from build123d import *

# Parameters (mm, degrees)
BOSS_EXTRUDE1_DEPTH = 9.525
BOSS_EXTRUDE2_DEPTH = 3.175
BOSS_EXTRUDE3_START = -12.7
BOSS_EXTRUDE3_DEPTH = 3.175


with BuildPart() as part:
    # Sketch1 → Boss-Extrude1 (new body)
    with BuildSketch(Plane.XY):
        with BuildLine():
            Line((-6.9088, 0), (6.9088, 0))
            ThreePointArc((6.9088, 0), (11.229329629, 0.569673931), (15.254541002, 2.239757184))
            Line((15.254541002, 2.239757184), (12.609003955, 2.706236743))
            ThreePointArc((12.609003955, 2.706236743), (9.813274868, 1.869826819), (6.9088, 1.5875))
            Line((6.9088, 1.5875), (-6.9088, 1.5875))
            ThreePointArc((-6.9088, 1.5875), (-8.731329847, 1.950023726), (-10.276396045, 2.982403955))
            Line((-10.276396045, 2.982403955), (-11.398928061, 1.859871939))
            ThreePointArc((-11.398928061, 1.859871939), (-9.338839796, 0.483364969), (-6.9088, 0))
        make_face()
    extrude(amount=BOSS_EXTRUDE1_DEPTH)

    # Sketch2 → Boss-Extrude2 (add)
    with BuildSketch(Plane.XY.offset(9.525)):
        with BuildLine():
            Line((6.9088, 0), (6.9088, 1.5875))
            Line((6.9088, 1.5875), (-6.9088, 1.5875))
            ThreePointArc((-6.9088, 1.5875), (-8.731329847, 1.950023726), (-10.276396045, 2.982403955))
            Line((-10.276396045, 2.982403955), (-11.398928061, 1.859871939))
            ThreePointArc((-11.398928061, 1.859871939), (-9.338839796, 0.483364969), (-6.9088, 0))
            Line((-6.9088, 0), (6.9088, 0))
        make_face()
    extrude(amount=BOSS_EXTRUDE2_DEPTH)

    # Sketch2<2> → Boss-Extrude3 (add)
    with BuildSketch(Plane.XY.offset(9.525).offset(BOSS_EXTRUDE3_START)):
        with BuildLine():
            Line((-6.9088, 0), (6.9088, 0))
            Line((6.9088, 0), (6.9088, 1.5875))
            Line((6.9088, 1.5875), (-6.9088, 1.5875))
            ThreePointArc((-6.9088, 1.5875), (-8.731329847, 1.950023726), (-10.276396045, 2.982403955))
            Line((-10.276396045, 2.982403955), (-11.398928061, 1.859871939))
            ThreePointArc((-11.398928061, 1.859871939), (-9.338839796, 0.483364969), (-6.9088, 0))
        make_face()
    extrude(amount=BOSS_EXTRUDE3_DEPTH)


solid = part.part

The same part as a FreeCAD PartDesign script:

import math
import FreeCAD as App
import Part
import Sketcher
Q = App.Units.Quantity

doc = App.newDocument("Part")
body = doc.addObject("PartDesign::Body", "Body")

sketch1 = doc.addObject("Sketcher::SketchObject", "Sketch")
body.addObject(sketch1)
sketch1.AttachmentSupport = (doc.XY_Plane, [""])
sketch1.MapMode = "FlatFace"
sketch1.addGeometry(Part.LineSegment(App.Vector(-6.9088, 0, 0), App.Vector(6.9088, 0, 0)), False)
sketch1.addGeometry(Part.ArcOfCircle(Part.Circle(App.Vector(6.9088, 16.66875, 0), App.Vector(0, 0, 1), 16.66875), math.radians(-90), math.radians(-59.954877)), False)
sketch1.addGeometry(Part.LineSegment(App.Vector(15.254541, 2.239757, 0), App.Vector(12.609004, 2.706237, 0)), False)
sketch1.addGeometry(Part.ArcOfCircle(Part.Circle(App.Vector(6.9088, 16.66875, 0), App.Vector(0, 0, 1), 15.08125), math.radians(-90), math.radians(-67.792234)), False)
sketch1.addGeometry(Part.LineSegment(App.Vector(6.9088, 1.5875, 0), App.Vector(-6.9088, 1.5875, 0)), False)
sketch1.addGeometry(Part.ArcOfCircle(Part.Circle(App.Vector(-6.9088, 6.35, 0), App.Vector(0, 0, 1), 4.7625), math.radians(-135), math.radians(-90)), False)
sketch1.addGeometry(Part.LineSegment(App.Vector(-10.276396, 2.982404, 0), App.Vector(-11.398928, 1.859872, 0)), False)
sketch1.addGeometry(Part.ArcOfCircle(Part.Circle(App.Vector(-6.9088, 6.35, 0), App.Vector(0, 0, 1), 6.35), math.radians(-135), math.radians(-90)), False)
sketch1.addConstraint(Sketcher.Constraint("Tangent", 0, 2, 1, 1))
sketch1.addConstraint(Sketcher.Constraint("Coincident", 1, 2, 2, 1))
sketch1.addConstraint(Sketcher.Constraint("Coincident", 2, 2, 3, 2))
sketch1.addConstraint(Sketcher.Constraint("Tangent", 3, 1, 4, 1))
sketch1.addConstraint(Sketcher.Constraint("Tangent", 4, 2, 5, 2))
sketch1.addConstraint(Sketcher.Constraint("Coincident", 5, 1, 6, 1))
sketch1.addConstraint(Sketcher.Constraint("Coincident", 6, 2, 7, 1))
sketch1.addConstraint(Sketcher.Constraint("Tangent", 7, 2, 0, 1))
sketch1.addConstraint(Sketcher.Constraint("Horizontal", 0))
sketch1.addConstraint(Sketcher.Constraint("Horizontal", 4))
sketch1.addConstraint(Sketcher.Constraint("Coincident", 3, 3, 1, 3))
sketch1.addConstraint(Sketcher.Constraint("Coincident", 7, 3, 5, 3))
sketch1.addConstraint(Sketcher.Constraint("Symmetric", 0, 2, 7, 2, -1, 1))
sketch1.addConstraint(Sketcher.Constraint("Radius", 7, Q("0.25 in")))
sketch1.addConstraint(Sketcher.Constraint("Angle", 2, Q("170 deg")))
sketch1.addConstraint(Sketcher.Constraint("Angle", 6, Q("-135 deg")))
sketch1.addConstraint(Sketcher.Constraint("Radius", 1, Q("0.65625 in")))
sketch1.addConstraint(Sketcher.Constraint("Radius", 3, Q("0.59375 in")))
sketch1.addConstraint(Sketcher.Constraint("DistanceX", 0, 1, 0, 2, Q("0.544 in")))
sketch1.addConstraint(Sketcher.Constraint("Distance", 2, Q("2.686349 mm")))
sketch1.addConstraint(Sketcher.Constraint("DistanceX", 6, 2, -1, 1, Q("11.398928 mm")))
pad1 = doc.addObject("PartDesign::Pad", "Pad")
body.addObject(pad1)
pad1.Profile = sketch1
pad1.Length = Q("0.375 in")

sketch2 = doc.addObject("Sketcher::SketchObject", "Sketch001")
body.addObject(sketch2)
sketch2.AttachmentSupport = (doc.XY_Plane, [""])
sketch2.MapMode = "FlatFace"
sketch2.AttachmentOffset = App.Placement(App.Vector(0, 0, 0.375 * 25.4), App.Rotation())
sketch2.addGeometry(Part.LineSegment(App.Vector(6.9088, 0, 0), App.Vector(6.9088, 1.5875, 0)), False)
sketch2.addGeometry(Part.LineSegment(App.Vector(6.9088, 1.5875, 0), App.Vector(-6.9088, 1.5875, 0)), False)
sketch2.addGeometry(Part.ArcOfCircle(Part.Circle(App.Vector(-6.9088, 6.35, 0), App.Vector(0, 0, 1), 4.7625), math.radians(-135), math.radians(-90)), False)
sketch2.addGeometry(Part.LineSegment(App.Vector(-10.276396, 2.982404, 0), App.Vector(-11.398928, 1.859872, 0)), False)
sketch2.addGeometry(Part.ArcOfCircle(Part.Circle(App.Vector(-6.9088, 6.35, 0), App.Vector(0, 0, 1), 6.35), math.radians(-135), math.radians(-90)), False)
sketch2.addGeometry(Part.LineSegment(App.Vector(-6.9088, 0, 0), App.Vector(6.9088, 0, 0)), False)
sketch2.addConstraint(Sketcher.Constraint("Coincident", 0, 2, 1, 1))
sketch2.addConstraint(Sketcher.Constraint("Tangent", 1, 2, 2, 2))
sketch2.addConstraint(Sketcher.Constraint("Coincident", 2, 1, 3, 1))
sketch2.addConstraint(Sketcher.Constraint("Coincident", 3, 2, 4, 1))
sketch2.addConstraint(Sketcher.Constraint("Tangent", 4, 2, 5, 1))
sketch2.addConstraint(Sketcher.Constraint("Coincident", 5, 2, 0, 1))
sketch2.addConstraint(Sketcher.Constraint("Vertical", 0))
sketch2.addConstraint(Sketcher.Constraint("Horizontal", 1))
sketch2.addConstraint(Sketcher.Constraint("Horizontal", 5))
sketch2.addConstraint(Sketcher.Constraint("Coincident", 4, 3, 2, 3))
sketch2.addConstraint(Sketcher.Constraint("Symmetric", 4, 2, 5, 2, -1, 1))
sketch2.addConstraint(Sketcher.Constraint("Radius", 4, Q("0.25 in")))
sketch2.addConstraint(Sketcher.Constraint("Angle", 3, Q("-135 deg")))
sketch2.addConstraint(Sketcher.Constraint("Radius", 2, Q("0.1875 in")))
sketch2.addConstraint(Sketcher.Constraint("DistanceX", 1, 2, 1, 1, Q("0.544 in")))
sketch2.addConstraint(Sketcher.Constraint("DistanceX", 3, 2, -1, 1, Q("11.398928 mm")))
pad2 = doc.addObject("PartDesign::Pad", "Pad001")
body.addObject(pad2)
pad2.Profile = sketch2
pad2.Length = Q("0.125 in")

sketch3 = doc.addObject("Sketcher::SketchObject", "Sketch002")
body.addObject(sketch3)
sketch3.AttachmentSupport = (doc.XY_Plane, [""])
sketch3.MapMode = "FlatFace"
sketch3.AttachmentOffset = App.Placement(App.Vector(0, 0, -0.125 * 25.4), App.Rotation())
sketch3.addGeometry(Part.LineSegment(App.Vector(-6.9088, 0, 0), App.Vector(6.9088, 0, 0)), False)
sketch3.addGeometry(Part.LineSegment(App.Vector(6.9088, 0, 0), App.Vector(6.9088, 1.5875, 0)), False)
sketch3.addGeometry(Part.LineSegment(App.Vector(6.9088, 1.5875, 0), App.Vector(-6.9088, 1.5875, 0)), False)
sketch3.addGeometry(Part.ArcOfCircle(Part.Circle(App.Vector(-6.9088, 6.35, 0), App.Vector(0, 0, 1), 4.7625), math.radians(-135), math.radians(-90)), False)
sketch3.addGeometry(Part.LineSegment(App.Vector(-10.276396, 2.982404, 0), App.Vector(-11.398928, 1.859872, 0)), False)
sketch3.addGeometry(Part.ArcOfCircle(Part.Circle(App.Vector(-6.9088, 6.35, 0), App.Vector(0, 0, 1), 6.35), math.radians(-135), math.radians(-90)), False)
sketch3.addConstraint(Sketcher.Constraint("Coincident", 0, 2, 1, 1))
sketch3.addConstraint(Sketcher.Constraint("Coincident", 1, 2, 2, 1))
sketch3.addConstraint(Sketcher.Constraint("Tangent", 2, 2, 3, 2))
sketch3.addConstraint(Sketcher.Constraint("Coincident", 3, 1, 4, 1))
sketch3.addConstraint(Sketcher.Constraint("Coincident", 4, 2, 5, 1))
sketch3.addConstraint(Sketcher.Constraint("Tangent", 5, 2, 0, 1))
sketch3.addConstraint(Sketcher.Constraint("Horizontal", 0))
sketch3.addConstraint(Sketcher.Constraint("Vertical", 1))
sketch3.addConstraint(Sketcher.Constraint("Horizontal", 2))
sketch3.addConstraint(Sketcher.Constraint("Coincident", 5, 3, 3, 3))
sketch3.addConstraint(Sketcher.Constraint("Symmetric", 0, 2, 5, 2, -1, 1))
sketch3.addConstraint(Sketcher.Constraint("Radius", 5, Q("0.25 in")))
sketch3.addConstraint(Sketcher.Constraint("Angle", 4, Q("-135 deg")))
sketch3.addConstraint(Sketcher.Constraint("Radius", 3, Q("0.1875 in")))
sketch3.addConstraint(Sketcher.Constraint("DistanceX", 0, 1, 0, 2, Q("0.544 in")))
sketch3.addConstraint(Sketcher.Constraint("DistanceX", 4, 2, -1, 1, Q("11.398928 mm")))
pad3 = doc.addObject("PartDesign::Pad", "Pad002")
body.addObject(pad3)
pad3.Profile = sketch3
pad3.Length = Q("0.125 in")

doc.recompute()
